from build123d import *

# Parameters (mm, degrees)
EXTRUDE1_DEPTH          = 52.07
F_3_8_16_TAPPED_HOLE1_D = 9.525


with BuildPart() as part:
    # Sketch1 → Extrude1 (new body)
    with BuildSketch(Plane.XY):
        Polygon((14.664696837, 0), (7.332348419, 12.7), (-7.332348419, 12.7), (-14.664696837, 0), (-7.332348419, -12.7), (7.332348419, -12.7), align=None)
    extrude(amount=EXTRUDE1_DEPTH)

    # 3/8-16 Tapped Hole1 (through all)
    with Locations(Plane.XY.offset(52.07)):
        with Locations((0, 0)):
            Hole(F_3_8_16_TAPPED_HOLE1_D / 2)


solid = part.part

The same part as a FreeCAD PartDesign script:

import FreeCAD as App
import Part
import Sketcher
Q = App.Units.Quantity

doc = App.newDocument("Part")
body = doc.addObject("PartDesign::Body", "Body")

# Sketch on XY plane
sketch1 = body.newObject("Sketcher::SketchObject", "Sketch")
sketch1.AttachmentSupport = (doc.getObject("XY_Plane"), [""])
sketch1.MapMode = "FlatFace"
sketch1.addGeometry([
    Part.LineSegment(App.Vector(15, 0, 0), App.Vector(7, 13, 0)),  # 0
    Part.LineSegment(App.Vector(7, 13, 0), App.Vector(-7, 13, 0)),  # 1
    Part.LineSegment(App.Vector(-7, 13, 0), App.Vector(-15, 0, 0)),  # 2
    Part.LineSegment(App.Vector(-15, 0, 0), App.Vector(-7, -13, 0)),  # 3
    Part.LineSegment(App.Vector(-7, -13, 0), App.Vector(7, -13, 0)),  # 4
    Part.LineSegment(App.Vector(7, -13, 0), App.Vector(15, 0, 0)),  # 5
], False)
sketch1.addConstraint([
    Sketcher.Constraint("Coincident", 0, 2, 1, 1),
    Sketcher.Constraint("Coincident", 1, 2, 2, 1),
    Sketcher.Constraint("Coincident", 2, 2, 3, 1),
    Sketcher.Constraint("Coincident", 3, 2, 4, 1),
    Sketcher.Constraint("Coincident", 4, 2, 5, 1),
    Sketcher.Constraint("Coincident", 5, 2, 0, 1),
    Sketcher.Constraint("Horizontal", 1),
    Sketcher.Constraint("Horizontal", 4),
    Sketcher.Constraint("Symmetric", 0, 2, 3, 2, -1, 1),
    Sketcher.Constraint("Symmetric", 2, 2, 5, 2, -1, 1),
    Sketcher.Constraint("PointOnObject", 2, 2, -1),
    Sketcher.Constraint("Parallel", 2, 5),
    Sketcher.Constraint("Vertical", 1, 2, 3, 2),
    Sketcher.Constraint("Angle", 0, Q("120 deg")),
    Sketcher.Constraint("DistanceY", 3, 2, 1, 2, Q("1 in")),
    Sketcher.Constraint("DistanceX", 1, 2, 1, 1, 14.664697),
])
pad1 = body.newObject("PartDesign::Pad", "Pad")
pad1.Profile = sketch1
pad1.Length = Q("2.05 in")

# Sketch on XY plane
sketch2 = body.newObject("Sketcher::SketchObject", "Sketch001")
sketch2.AttachmentSupport = (doc.getObject("XY_Plane"), [""])
sketch2.MapMode = "FlatFace"
sketch2.AttachmentOffset = App.Placement(App.Vector(0, 0, 2.05 * 25.4), App.Rotation())
sketch2.addGeometry(Part.Circle(App.Vector(0, 0, 0), App.Vector(0, 0, 1), 4.8), False)
sketch2.addConstraint([
    Sketcher.Constraint("Coincident", 0, 3, -1, 1),
    Sketcher.Constraint("Diameter", 0, Q("0.375 in")),
])
doc.recompute()
hole = body.newObject("PartDesign::Hole", "Hole")
hole.Profile = sketch2
hole.ThreadType = "None"
hole.Diameter = Q("0.375 in")
hole.DepthType = "ThroughAll"

doc.recompute()
